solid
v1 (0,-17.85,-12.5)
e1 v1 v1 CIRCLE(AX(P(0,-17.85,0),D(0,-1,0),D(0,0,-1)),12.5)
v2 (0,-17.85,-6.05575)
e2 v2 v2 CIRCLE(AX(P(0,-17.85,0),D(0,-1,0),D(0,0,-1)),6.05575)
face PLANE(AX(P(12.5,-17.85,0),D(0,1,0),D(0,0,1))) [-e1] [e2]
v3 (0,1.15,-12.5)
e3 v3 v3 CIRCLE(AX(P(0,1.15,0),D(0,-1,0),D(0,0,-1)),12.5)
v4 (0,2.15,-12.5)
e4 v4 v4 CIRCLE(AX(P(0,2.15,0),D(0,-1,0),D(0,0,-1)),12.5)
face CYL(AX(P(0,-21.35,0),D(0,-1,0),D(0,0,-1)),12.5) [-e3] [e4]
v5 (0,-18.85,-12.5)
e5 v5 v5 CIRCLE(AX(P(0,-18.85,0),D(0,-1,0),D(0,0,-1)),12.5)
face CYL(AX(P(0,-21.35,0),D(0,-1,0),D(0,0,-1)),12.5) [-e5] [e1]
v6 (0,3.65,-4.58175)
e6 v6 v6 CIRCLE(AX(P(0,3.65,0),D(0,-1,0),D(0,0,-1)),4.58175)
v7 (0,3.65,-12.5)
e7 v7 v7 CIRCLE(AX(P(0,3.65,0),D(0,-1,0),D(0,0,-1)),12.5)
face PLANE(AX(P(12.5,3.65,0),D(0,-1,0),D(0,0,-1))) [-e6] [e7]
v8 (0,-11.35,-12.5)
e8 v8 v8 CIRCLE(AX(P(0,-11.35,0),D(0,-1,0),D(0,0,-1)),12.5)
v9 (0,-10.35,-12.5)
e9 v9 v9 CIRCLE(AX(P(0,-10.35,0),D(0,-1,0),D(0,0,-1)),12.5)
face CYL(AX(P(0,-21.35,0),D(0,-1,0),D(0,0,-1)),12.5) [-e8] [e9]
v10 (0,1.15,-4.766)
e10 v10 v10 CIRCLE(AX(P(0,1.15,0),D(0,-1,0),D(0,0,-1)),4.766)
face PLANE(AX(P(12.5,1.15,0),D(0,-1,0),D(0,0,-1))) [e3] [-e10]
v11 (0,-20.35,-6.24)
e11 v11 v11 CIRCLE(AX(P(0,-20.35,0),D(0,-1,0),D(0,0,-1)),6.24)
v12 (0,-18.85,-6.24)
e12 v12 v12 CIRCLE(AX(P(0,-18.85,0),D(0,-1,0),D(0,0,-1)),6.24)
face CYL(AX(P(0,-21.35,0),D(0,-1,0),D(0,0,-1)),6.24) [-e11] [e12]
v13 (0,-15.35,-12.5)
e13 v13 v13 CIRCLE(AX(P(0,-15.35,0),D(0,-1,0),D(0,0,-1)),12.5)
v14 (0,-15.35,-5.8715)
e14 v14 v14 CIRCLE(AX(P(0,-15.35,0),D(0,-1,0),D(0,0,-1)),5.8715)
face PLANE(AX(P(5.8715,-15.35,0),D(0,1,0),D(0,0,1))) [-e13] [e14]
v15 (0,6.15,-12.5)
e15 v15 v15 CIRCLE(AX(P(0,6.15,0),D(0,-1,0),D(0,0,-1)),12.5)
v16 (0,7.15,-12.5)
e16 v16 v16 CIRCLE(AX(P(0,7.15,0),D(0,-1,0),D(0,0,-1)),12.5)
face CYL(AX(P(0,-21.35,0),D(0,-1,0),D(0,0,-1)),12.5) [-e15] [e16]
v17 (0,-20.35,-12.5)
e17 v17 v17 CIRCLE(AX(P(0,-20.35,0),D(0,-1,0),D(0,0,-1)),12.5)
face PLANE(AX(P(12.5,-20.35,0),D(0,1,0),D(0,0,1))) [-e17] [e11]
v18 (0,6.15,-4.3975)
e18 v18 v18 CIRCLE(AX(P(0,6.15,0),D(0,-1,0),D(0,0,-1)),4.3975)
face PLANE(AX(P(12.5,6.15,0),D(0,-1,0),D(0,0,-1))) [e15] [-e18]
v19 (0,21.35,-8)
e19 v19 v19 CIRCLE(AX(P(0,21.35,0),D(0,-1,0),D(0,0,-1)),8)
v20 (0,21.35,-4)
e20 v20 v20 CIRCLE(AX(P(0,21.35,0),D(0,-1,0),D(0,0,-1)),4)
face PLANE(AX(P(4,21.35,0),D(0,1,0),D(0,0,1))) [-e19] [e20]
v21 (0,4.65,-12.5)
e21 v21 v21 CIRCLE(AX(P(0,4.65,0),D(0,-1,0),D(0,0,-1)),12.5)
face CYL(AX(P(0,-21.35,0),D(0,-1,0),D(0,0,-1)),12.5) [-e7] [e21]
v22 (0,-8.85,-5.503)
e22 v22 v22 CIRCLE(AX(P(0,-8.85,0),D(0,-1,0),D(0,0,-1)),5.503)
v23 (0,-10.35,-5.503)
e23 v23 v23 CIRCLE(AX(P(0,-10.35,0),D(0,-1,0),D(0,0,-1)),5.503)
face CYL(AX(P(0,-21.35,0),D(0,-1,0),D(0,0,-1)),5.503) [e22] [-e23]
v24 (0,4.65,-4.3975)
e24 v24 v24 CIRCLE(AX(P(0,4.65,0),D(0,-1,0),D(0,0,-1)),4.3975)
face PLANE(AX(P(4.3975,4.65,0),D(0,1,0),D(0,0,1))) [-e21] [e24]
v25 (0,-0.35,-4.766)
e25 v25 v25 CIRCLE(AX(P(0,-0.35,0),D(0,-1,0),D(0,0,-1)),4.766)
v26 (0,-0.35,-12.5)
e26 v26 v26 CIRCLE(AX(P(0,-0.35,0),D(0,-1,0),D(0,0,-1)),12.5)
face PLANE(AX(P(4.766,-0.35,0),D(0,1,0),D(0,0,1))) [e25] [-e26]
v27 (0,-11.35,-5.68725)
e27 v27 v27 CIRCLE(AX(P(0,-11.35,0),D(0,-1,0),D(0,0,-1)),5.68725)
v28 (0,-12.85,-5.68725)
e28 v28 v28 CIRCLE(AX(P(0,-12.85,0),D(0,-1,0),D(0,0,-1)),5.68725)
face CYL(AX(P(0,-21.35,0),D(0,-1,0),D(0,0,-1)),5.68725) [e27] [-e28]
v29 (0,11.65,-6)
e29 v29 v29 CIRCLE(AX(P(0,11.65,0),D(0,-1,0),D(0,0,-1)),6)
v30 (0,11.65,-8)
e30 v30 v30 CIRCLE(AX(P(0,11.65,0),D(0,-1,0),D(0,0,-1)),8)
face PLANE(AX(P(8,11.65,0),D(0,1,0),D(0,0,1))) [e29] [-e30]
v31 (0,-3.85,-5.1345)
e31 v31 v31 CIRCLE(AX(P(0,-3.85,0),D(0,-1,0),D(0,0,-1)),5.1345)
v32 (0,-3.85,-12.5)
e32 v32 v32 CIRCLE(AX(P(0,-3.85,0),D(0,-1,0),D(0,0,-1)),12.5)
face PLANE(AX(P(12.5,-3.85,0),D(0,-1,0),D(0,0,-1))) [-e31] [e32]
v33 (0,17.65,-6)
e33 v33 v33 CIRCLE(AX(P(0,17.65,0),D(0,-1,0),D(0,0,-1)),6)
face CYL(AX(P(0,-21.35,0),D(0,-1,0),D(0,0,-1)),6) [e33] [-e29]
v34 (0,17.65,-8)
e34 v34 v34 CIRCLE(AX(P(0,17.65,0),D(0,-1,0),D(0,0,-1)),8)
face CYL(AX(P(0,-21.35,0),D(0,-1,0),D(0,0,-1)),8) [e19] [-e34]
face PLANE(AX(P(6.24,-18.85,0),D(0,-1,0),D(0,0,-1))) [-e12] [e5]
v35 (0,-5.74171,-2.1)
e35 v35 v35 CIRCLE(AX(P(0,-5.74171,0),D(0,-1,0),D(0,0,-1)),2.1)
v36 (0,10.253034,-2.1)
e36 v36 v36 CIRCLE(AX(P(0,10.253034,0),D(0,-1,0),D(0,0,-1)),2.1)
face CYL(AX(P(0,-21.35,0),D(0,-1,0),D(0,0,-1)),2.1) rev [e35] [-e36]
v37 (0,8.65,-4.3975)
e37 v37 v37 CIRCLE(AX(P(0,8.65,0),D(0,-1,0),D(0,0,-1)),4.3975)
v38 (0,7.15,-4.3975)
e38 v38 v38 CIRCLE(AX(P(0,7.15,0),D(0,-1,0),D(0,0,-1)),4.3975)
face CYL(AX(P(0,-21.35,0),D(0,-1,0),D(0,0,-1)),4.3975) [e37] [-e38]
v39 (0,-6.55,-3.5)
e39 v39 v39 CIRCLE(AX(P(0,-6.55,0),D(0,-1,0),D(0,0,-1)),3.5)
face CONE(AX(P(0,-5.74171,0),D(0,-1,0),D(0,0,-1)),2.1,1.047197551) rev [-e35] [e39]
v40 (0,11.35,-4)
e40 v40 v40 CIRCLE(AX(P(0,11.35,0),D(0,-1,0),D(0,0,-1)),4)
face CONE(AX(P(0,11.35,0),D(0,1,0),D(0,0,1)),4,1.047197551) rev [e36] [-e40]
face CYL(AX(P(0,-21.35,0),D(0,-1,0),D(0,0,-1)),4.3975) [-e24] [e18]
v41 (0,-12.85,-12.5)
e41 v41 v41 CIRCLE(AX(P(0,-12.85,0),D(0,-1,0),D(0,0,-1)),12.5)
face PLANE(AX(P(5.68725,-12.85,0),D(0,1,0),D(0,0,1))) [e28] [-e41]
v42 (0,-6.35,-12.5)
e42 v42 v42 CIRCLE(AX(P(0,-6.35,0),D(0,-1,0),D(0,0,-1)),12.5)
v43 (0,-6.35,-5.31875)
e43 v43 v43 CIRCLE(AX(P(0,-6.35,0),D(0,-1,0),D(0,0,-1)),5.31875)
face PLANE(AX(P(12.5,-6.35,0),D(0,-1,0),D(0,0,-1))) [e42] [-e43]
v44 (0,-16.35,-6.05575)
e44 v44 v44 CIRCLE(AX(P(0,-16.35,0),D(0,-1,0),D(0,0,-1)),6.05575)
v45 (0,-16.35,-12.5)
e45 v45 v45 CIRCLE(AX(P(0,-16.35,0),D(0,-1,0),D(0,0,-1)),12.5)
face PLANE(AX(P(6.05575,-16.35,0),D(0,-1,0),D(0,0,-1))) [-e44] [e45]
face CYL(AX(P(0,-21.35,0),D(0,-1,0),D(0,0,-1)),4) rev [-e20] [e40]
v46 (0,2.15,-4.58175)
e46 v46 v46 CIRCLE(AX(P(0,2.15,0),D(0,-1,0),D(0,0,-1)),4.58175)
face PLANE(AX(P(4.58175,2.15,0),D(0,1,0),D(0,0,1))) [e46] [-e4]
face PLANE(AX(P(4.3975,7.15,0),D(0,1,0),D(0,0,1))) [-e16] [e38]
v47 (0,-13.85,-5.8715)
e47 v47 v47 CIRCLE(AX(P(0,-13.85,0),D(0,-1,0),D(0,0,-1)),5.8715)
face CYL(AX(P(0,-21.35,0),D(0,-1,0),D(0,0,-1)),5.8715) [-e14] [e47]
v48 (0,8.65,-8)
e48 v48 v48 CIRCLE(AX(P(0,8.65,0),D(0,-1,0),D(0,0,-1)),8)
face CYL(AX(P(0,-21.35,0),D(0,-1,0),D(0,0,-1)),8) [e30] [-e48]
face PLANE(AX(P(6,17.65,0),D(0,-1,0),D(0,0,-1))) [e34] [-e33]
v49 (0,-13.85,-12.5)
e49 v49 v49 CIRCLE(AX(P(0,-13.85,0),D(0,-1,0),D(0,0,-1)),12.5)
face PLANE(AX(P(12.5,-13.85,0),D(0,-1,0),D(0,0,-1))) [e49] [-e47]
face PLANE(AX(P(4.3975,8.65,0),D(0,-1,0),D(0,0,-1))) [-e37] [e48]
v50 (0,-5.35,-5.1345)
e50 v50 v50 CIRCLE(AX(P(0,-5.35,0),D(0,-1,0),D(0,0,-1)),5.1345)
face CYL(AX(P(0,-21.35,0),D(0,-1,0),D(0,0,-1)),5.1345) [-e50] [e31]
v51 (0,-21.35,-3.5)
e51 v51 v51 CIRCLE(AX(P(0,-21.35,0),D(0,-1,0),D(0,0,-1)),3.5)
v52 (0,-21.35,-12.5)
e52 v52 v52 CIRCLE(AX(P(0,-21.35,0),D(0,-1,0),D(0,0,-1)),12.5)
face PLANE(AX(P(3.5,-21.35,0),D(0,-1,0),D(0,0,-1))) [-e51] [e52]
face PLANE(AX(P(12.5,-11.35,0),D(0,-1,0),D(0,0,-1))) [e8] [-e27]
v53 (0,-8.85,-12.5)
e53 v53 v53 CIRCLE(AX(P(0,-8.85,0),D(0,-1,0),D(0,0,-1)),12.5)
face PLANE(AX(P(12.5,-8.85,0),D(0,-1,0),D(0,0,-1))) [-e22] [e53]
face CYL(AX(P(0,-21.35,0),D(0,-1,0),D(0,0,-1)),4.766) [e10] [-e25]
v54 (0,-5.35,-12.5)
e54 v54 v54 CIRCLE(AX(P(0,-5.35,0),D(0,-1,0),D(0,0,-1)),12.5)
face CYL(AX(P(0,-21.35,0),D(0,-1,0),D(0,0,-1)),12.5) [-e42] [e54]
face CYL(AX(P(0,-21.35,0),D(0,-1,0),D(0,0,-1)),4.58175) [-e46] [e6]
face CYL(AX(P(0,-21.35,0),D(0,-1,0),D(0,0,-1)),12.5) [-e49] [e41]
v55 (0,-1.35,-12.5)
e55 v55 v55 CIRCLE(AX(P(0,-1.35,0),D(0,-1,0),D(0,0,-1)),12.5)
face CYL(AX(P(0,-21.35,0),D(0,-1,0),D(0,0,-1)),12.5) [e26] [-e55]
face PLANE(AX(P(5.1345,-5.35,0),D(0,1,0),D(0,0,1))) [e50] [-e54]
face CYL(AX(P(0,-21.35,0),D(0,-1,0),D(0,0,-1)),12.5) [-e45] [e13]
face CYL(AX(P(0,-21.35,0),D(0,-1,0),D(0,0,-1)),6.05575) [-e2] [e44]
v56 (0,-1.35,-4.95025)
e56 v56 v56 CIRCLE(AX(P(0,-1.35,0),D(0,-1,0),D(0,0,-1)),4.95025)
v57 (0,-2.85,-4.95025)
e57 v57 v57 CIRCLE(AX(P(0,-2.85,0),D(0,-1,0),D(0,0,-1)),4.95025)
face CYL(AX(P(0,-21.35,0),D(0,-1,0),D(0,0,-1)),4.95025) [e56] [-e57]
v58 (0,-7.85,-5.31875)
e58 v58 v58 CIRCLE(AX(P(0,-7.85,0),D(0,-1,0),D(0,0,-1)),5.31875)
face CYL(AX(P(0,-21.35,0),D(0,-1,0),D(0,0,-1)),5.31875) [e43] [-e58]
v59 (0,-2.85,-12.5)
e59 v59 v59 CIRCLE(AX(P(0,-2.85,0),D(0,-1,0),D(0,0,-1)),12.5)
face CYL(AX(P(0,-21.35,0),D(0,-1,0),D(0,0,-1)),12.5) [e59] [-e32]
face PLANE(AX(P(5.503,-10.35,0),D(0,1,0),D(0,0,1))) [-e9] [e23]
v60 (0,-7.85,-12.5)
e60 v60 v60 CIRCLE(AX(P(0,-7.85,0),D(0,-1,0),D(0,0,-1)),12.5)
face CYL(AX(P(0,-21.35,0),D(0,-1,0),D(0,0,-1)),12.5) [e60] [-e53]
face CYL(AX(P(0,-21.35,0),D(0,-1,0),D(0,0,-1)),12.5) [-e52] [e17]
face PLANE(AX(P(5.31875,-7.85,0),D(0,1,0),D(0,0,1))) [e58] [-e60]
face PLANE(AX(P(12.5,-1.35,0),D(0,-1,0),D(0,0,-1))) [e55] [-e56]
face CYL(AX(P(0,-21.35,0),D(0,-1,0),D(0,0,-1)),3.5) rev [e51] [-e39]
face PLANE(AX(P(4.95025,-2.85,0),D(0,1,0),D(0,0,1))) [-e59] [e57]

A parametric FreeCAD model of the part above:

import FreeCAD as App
import Part
import Sketcher

V = App.Vector
Q = App.Units.Quantity


def add_polygon(sketch, points):
    """Adds a closed chain of lines whose ends are joined by coincident constraints."""
    first, n = sketch.GeometryCount, len(points)
    for a, b in zip(points, points[1:] + points[:1]):
        sketch.addGeometry(Part.LineSegment(App.Vector(*a, 0), App.Vector(*b, 0)), False)
    for i in range(n):
        sketch.addConstraint(Sketcher.Constraint("Coincident", first + i, 2, first + (i + 1) % n, 1))

doc = App.newDocument("Part")
body = doc.addObject("PartDesign::Body", "Body")

# Sketch on XY plane
sketch1 = doc.addObject("Sketcher::SketchObject", "Sketch")
body.addObject(sketch1)
sketch1.AttachmentSupport = (doc.XY_Plane, [""])
sketch1.MapMode = "FlatFace"
add_polygon(sketch1, [(3.5, -21.4), (12.5, -21.4), (12.5, -20.4), (6.2, -20.4), (6.2, -18.9), (12.5, -18.9), (12.5, -17.9), (6.1, -17.9), (6.1, -16.4), (12.5, -16.4), (12.5, -15.3), (5.9, -15.3), (5.9, -13.8), (12.5, -13.8), (12.5, -12.8), (5.7, -12.8), (5.7, -11.3), (12.5, -11.3), (12.5, -10.3), (5.5, -10.3), (5.5, -8.8), (12.5, -8.8), (12.5, -7.8), (5.3, -7.8), (5.3, -6.3), (12.5, -6.3), (12.5, -5.3), (5.1, -5.3), (5.1, -3.9), (12.5, -3.9), (12.5, -2.9), (5, -2.9), (5, -1.4), (12.5, -1.4), (12.5, -0.3), (4.8, -0.3), (4.8, 1.1), (12.5, 1.1), (12.5, 2.1), (4.6, 2.1), (4.6, 3.6), (12.5, 3.6), (12.5, 4.7), (4.4, 4.7), (4.4, 6.2), (12.5, 6.2), (12.5, 7.2), (4.4, 7.2), (4.4, 8.7), (8, 8.7), (8, 11.7), (6, 11.7), (6, 17.6), (8, 17.6), (8, 21.4), (4, 21.4), (4, 11.3), (2.1, 10.3), (2.1, -5.7), (3.5, -6.5)])  # lines 0-59
sketch1.addConstraint(Sketcher.Constraint("Horizontal", 0))
sketch1.addConstraint(Sketcher.Constraint("Vertical", 1))
sketch1.addConstraint(Sketcher.Constraint("Horizontal", 2))
sketch1.addConstraint(Sketcher.Constraint("Vertical", 3))
sketch1.addConstraint(Sketcher.Constraint("Horizontal", 4))
sketch1.addConstraint(Sketcher.Constraint("Vertical", 5))
sketch1.addConstraint(Sketcher.Constraint("Horizontal", 6))
sketch1.addConstraint(Sketcher.Constraint("Vertical", 7))
sketch1.addConstraint(Sketcher.Constraint("Horizontal", 8))
sketch1.addConstraint(Sketcher.Constraint("Vertical", 9))
sketch1.addConstraint(Sketcher.Constraint("Horizontal", 10))
sketch1.addConstraint(Sketcher.Constraint("Vertical", 11))
sketch1.addConstraint(Sketcher.Constraint("Horizontal", 12))
sketch1.addConstraint(Sketcher.Constraint("Vertical", 13))
sketch1.addConstraint(Sketcher.Constraint("Horizontal", 14))
sketch1.addConstraint(Sketcher.Constraint("Vertical", 15))
sketch1.addConstraint(Sketcher.Constraint("Horizontal", 16))
sketch1.addConstraint(Sketcher.Constraint("Vertical", 17))
sketch1.addConstraint(Sketcher.Constraint("Horizontal", 18))
sketch1.addConstraint(Sketcher.Constraint("Vertical", 19))
sketch1.addConstraint(Sketcher.Constraint("Horizontal", 20))
sketch1.addConstraint(Sketcher.Constraint("Vertical", 21))
sketch1.addConstraint(Sketcher.Constraint("Horizontal", 22))
sketch1.addConstraint(Sketcher.Constraint("Vertical", 23))
sketch1.addConstraint(Sketcher.Constraint("Horizontal", 24))
sketch1.addConstraint(Sketcher.Constraint("Vertical", 25))
sketch1.addConstraint(Sketcher.Constraint("Horizontal", 26))
sketch1.addConstraint(Sketcher.Constraint("Vertical", 27))
sketch1.addConstraint(Sketcher.Constraint("Horizontal", 28))
sketch1.addConstraint(Sketcher.Constraint("Vertical", 29))
sketch1.addConstraint(Sketcher.Constraint("Horizontal", 30))
sketch1.addConstraint(Sketcher.Constraint("Vertical", 31))
sketch1.addConstraint(Sketcher.Constraint("Horizontal", 32))
sketch1.addConstraint(Sketcher.Constraint("Vertical", 33))
sketch1.addConstraint(Sketcher.Constraint("Horizontal", 34))
sketch1.addConstraint(Sketcher.Constraint("Vertical", 35))
sketch1.addConstraint(Sketcher.Constraint("Horizontal", 36))
sketch1.addConstraint(Sketcher.Constraint("Vertical", 37))
sketch1.addConstraint(Sketcher.Constraint("Horizontal", 38))
sketch1.addConstraint(Sketcher.Constraint("Vertical", 39))
sketch1.addConstraint(Sketcher.Constraint("Horizontal", 40))
sketch1.addConstraint(Sketcher.Constraint("Vertical", 41))
sketch1.addConstraint(Sketcher.Constraint("Horizontal", 42))
sketch1.addConstraint(Sketcher.Constraint("Vertical", 43))
sketch1.addConstraint(Sketcher.Constraint("Horizontal", 44))
sketch1.addConstraint(Sketcher.Constraint("Vertical", 45))
sketch1.addConstraint(Sketcher.Constraint("Horizontal", 46))
sketch1.addConstraint(Sketcher.Constraint("Vertical", 47))
sketch1.addConstraint(Sketcher.Constraint("Horizontal", 48))
sketch1.addConstraint(Sketcher.Constraint("Vertical", 49))
sketch1.addConstraint(Sketcher.Constraint("Horizontal", 50))
sketch1.addConstraint(Sketcher.Constraint("Vertical", 51))
sketch1.addConstraint(Sketcher.Constraint("Horizontal", 52))
sketch1.addConstraint(Sketcher.Constraint("Vertical", 53))
sketch1.addConstraint(Sketcher.Constraint("Horizontal", 54))
sketch1.addConstraint(Sketcher.Constraint("Vertical", 55))
sketch1.addConstraint(Sketcher.Constraint("Vertical", 57))
sketch1.addConstraint(Sketcher.Constraint("Vertical", 59))
sketch1.addConstraint(Sketcher.Constraint("Vertical", 1, 2, 4, 2))
sketch1.addConstraint(Sketcher.Constraint("Vertical", 5, 2, 8, 2))
sketch1.addConstraint(Sketcher.Constraint("Vertical", 9, 2, 12, 2))
sketch1.addConstraint(Sketcher.Constraint("Vertical", 13, 2, 16, 2))
sketch1.addConstraint(Sketcher.Constraint("Vertical", 17, 2, 20, 2))
sketch1.addConstraint(Sketcher.Constraint("Vertical", 21, 2, 24, 2))
sketch1.addConstraint(Sketcher.Constraint("Vertical", 25, 2, 28, 2))
sketch1.addConstraint(Sketcher.Constraint("Vertical", 29, 2, 32, 2))
sketch1.addConstraint(Sketcher.Constraint("Vertical", 33, 2, 36, 2))
sketch1.addConstraint(Sketcher.Constraint("Vertical", 37, 2, 40, 2))
sketch1.addConstraint(Sketcher.Constraint("Vertical", 41, 2, 44, 2))
sketch1.addConstraint(Sketcher.Constraint("Vertical", 43, 2, 46, 2))
sketch1.addConstraint(Sketcher.Constraint("Vertical", 49, 2, 52, 2))
sketch1.addConstraint(Sketcher.Constraint("Equal", 1, 5))
sketch1.addConstraint(Sketcher.Constraint("Equal", 3, 7))
sketch1.addConstraint(Sketcher.Constraint("Equal", 5, 9))
sketch1.addConstraint(Sketcher.Constraint("Equal", 7, 11))
sketch1.addConstraint(Sketcher.Constraint("Equal", 9, 13))
sketch1.addConstraint(Sketcher.Constraint("Equal", 11, 15))
sketch1.addConstraint(Sketcher.Constraint("Equal", 13, 17))
sketch1.addConstraint(Sketcher.Constraint("Equal", 15, 19))
sketch1.addConstraint(Sketcher.Constraint("Equal", 17, 21))
sketch1.addConstraint(Sketcher.Constraint("Equal", 19, 23))
sketch1.addConstraint(Sketcher.Constraint("Equal", 21, 25))
sketch1.addConstraint(Sketcher.Constraint("Equal", 23, 27))
sketch1.addConstraint(Sketcher.Constraint("Equal", 25, 29))
sketch1.addConstraint(Sketcher.Constraint("Equal", 27, 31))
sketch1.addConstraint(Sketcher.Constraint("Equal", 29, 33))
sketch1.addConstraint(Sketcher.Constraint("Equal", 31, 35))
sketch1.addConstraint(Sketcher.Constraint("Equal", 33, 37))
sketch1.addConstraint(Sketcher.Constraint("Equal", 35, 39))
sketch1.addConstraint(Sketcher.Constraint("Equal", 37, 41))
sketch1.addConstraint(Sketcher.Constraint("Equal", 39, 43))
sketch1.addConstraint(Sketcher.Constraint("Equal", 41, 45))
sketch1.addConstraint(Sketcher.Constraint("Equal", 43, 47))
sketch1.addConstraint(Sketcher.Constraint("DistanceX", 0, 1, 0, 2, 9.0))
sketch1.addConstraint(Sketcher.Constraint("DistanceX", 50, 2, 50, 1, 2.0))
sketch1.addConstraint(Sketcher.Constraint("DistanceX", 54, 2, 54, 1, 4.0))
sketch1.addConstraint(Sketcher.Constraint("DistanceY", 1, 1, 1, 2, 1.0))
sketch1.addConstraint(Sketcher.Constraint("DistanceY", 49, 1, 49, 2, 3.0))
sketch1.addConstraint(Sketcher.Constraint("DistanceY", 51, 1, 51, 2, 6.0))
sketch1.addConstraint(Sketcher.Constraint("DistanceY", 55, 2, 55, 1, 10.0))
sketch1.addConstraint(Sketcher.Constraint("Angle", 56, Q("-150 deg")))
sketch1.addConstraint(Sketcher.Constraint("Angle", 58, Q("-30 deg")))
sketch1.addConstraint(Sketcher.Constraint("DistanceY", 3, 1, 3, 2, 1.5))
sketch1.addConstraint(Sketcher.Constraint("DistanceY", 53, 1, 53, 2, 3.7))
sketch1.addConstraint(Sketcher.Constraint("DistanceY", 59, 2, 59, 1, 14.8))
sketch1.addConstraint(Sketcher.Constraint("DistanceX", -1, 1, 48, 2, 8.0))
sketch1.addConstraint(Sketcher.Constraint("DistanceX", 2, 2, 2, 1, 6.26))
sketch1.addConstraint(Sketcher.Constraint("DistanceX", -1, 1, 0, 2, 12.5))
sketch1.addConstraint(Sketcher.Constraint("DistanceX", -1, 1, 56, 2, 2.1))
sketch1.addConstraint(Sketcher.Constraint("DistanceX", 18, 2, 18, 1, 6.997))
sketch1.addConstraint(Sketcher.Constraint("DistanceX", 34, 2, 34, 1, 7.734))
sketch1.addConstraint(Sketcher.Constraint("DistanceY", 0, 2, -1, 1, 21.35))
sketch1.addConstraint(Sketcher.Constraint("DistanceX", 10, 2, 10, 1, 6.6285))
sketch1.addConstraint(Sketcher.Constraint("DistanceX", 26, 2, 26, 1, 7.3655))
sketch1.addConstraint(Sketcher.Constraint("DistanceX", 42, 2, 42, 1, 8.1025))
sketch1.addConstraint(Sketcher.Constraint("DistanceX", 6, 2, 6, 1, 6.44425))
sketch1.addConstraint(Sketcher.Constraint("DistanceX", 14, 2, 14, 1, 6.81275))
sketch1.addConstraint(Sketcher.Constraint("DistanceX", 22, 2, 22, 1, 7.18125))
sketch1.addConstraint(Sketcher.Constraint("DistanceX", 30, 2, 30, 1, 7.54975))
sketch1.addConstraint(Sketcher.Constraint("DistanceX", 38, 2, 38, 1, 7.91825))
revolution = doc.addObject("PartDesign::Revolution", "Revolution")
body.addObject(revolution)
revolution.Profile = sketch1
revolution.ReferenceAxis = (sketch1, ["V_Axis"])
revolution.Angle = 360

doc.recompute()
